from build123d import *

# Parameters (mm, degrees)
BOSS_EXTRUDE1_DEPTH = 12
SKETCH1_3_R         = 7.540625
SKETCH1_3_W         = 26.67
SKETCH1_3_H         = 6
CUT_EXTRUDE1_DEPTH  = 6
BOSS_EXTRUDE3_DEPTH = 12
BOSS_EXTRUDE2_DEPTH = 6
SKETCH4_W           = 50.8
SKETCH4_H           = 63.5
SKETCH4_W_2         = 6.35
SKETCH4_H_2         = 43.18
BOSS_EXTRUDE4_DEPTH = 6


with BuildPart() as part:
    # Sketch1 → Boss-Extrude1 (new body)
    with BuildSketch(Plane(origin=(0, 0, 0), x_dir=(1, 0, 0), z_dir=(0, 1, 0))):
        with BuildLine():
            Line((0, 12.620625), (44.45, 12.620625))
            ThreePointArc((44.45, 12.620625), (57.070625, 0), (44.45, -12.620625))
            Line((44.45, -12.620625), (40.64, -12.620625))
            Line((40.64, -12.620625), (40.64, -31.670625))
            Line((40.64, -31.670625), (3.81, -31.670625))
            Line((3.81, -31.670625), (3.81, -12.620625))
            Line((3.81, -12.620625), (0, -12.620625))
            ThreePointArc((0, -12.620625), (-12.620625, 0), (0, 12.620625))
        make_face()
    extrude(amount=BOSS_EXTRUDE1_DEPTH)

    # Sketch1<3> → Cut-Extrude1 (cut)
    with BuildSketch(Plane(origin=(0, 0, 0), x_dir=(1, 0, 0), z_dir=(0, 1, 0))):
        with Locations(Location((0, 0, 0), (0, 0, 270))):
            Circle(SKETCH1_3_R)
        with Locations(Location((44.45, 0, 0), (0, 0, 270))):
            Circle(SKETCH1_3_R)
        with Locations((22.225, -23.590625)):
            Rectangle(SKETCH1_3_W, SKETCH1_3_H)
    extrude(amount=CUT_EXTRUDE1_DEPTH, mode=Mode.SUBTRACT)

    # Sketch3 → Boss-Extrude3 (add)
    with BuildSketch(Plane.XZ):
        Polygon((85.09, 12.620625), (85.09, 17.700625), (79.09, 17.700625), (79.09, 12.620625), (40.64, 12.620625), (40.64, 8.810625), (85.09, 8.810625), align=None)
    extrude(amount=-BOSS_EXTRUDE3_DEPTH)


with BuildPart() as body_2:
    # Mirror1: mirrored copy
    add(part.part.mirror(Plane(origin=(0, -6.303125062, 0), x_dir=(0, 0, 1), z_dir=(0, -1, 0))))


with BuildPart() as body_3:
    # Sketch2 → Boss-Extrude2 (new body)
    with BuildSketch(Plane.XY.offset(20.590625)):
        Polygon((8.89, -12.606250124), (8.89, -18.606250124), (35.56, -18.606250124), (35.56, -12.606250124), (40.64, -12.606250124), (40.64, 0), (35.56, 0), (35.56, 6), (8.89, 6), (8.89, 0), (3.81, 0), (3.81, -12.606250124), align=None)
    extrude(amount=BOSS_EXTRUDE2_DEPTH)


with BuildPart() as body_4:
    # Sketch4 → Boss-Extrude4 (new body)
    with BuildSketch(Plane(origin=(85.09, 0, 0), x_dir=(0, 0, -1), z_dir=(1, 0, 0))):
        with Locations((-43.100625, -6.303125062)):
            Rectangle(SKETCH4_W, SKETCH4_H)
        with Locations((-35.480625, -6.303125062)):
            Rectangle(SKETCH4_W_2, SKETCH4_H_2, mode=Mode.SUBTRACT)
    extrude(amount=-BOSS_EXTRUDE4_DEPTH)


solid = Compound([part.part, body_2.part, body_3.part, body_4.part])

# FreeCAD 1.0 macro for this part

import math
import FreeCAD as App
import Part
import Sketcher

V = App.Vector
Q = App.Units.Quantity

doc = App.newDocument("Part")
body = doc.addObject("PartDesign::Body", "Body")

sketch1 = body.newObject("Sketcher::SketchObject", "Sketch")
sketch1.AttachmentSupport = (doc.getObject("XZ_Plane"), [""])
sketch1.MapMode = "FlatFace"
sketch1.addGeometry(Part.LineSegment(V(44.5, -12.6, 0), V(0, -12.6, 0)), False)
sketch1.addGeometry(Part.ArcOfCircle(Part.Circle(V(0, 0, 0), V(0, 0, 1), 12.6), math.radians(90), math.radians(270)), False)
sketch1.addGeometry(Part.LineSegment(V(0, 12.6, 0), V(3.8, 12.6, 0)), False)
sketch1.addGeometry(Part.LineSegment(V(3.8, 12.6, 0), V(3.8, 31.7, 0)), False)
sketch1.addGeometry(Part.LineSegment(V(3.8, 31.7, 0), V(40.6, 31.7, 0)), False)
sketch1.addGeometry(Part.LineSegment(V(40.6, 31.7, 0), V(40.6, 12.6, 0)), False)
sketch1.addGeometry(Part.LineSegment(V(40.6, 12.6, 0), V(44.5, 12.6, 0)), False)
sketch1.addGeometry(Part.ArcOfCircle(Part.Circle(V(44.5, 0, 0), V(0, 0, 1), 12.6), math.radians(-90), math.radians(90)), False)
sketch1.addConstraint(Sketcher.Constraint("Tangent", 0, 2, 1, 2))
sketch1.addConstraint(Sketcher.Constraint("Tangent", 1, 1, 2, 1))
sketch1.addConstraint(Sketcher.Constraint("Coincident", 2, 2, 3, 1))
sketch1.addConstraint(Sketcher.Constraint("Coincident", 3, 2, 4, 1))
sketch1.addConstraint(Sketcher.Constraint("Coincident", 4, 2, 5, 1))
sketch1.addConstraint(Sketcher.Constraint("Coincident", 5, 2, 6, 1))
sketch1.addConstraint(Sketcher.Constraint("Tangent", 6, 2, 7, 2))
sketch1.addConstraint(Sketcher.Constraint("Tangent", 7, 1, 0, 1))
sketch1.addConstraint(Sketcher.Constraint("Horizontal", 0))
sketch1.addConstraint(Sketcher.Constraint("Horizontal", 2))
sketch1.addConstraint(Sketcher.Constraint("Vertical", 3))
sketch1.addConstraint(Sketcher.Constraint("Horizontal", 4))
sketch1.addConstraint(Sketcher.Constraint("Vertical", 5))
sketch1.addConstraint(Sketcher.Constraint("Horizontal", 6))
sketch1.addConstraint(Sketcher.Constraint("Coincident", 1, 3, -1, 1))
sketch1.addConstraint(Sketcher.Constraint("Equal", 1, 7))
sketch1.addConstraint(Sketcher.Constraint("Equal", 2, 6))
sketch1.addConstraint(Sketcher.Constraint("DistanceX", 0, 2, 0, 1, Q("1.75 in")))
sketch1.addConstraint(Sketcher.Constraint("DistanceX", 2, 1, 2, 2, Q("0.15 in")))
sketch1.addConstraint(Sketcher.Constraint("DistanceY", 3, 1, 3, 2, Q("0.75 in")))
sketch1.addConstraint(Sketcher.Constraint("Radius", 1, 12.620625))
pad1 = body.newObject("PartDesign::Pad", "Pad")
pad1.Profile = sketch1
pad1.Length = 12
pad1.Reversed = True

sketch2 = body.newObject("Sketcher::SketchObject", "Sketch001")
sketch2.AttachmentSupport = (doc.getObject("XZ_Plane"), [""])
sketch2.MapMode = "FlatFace"
sketch2.addGeometry(Part.Circle(V(0, 0, 0), V(0, 0, 1), 8), False)
sketch2.addGeometry(Part.Circle(V(44, 0, 0), V(0, 0, 1), 8), False)
sketch2.addGeometry(Part.LineSegment(V(9, 21, 0), V(9, 27, 0)), False)
sketch2.addGeometry(Part.LineSegment(V(9, 27, 0), V(36, 27, 0)), False)
sketch2.addGeometry(Part.LineSegment(V(36, 27, 0), V(36, 21, 0)), False)
sketch2.addGeometry(Part.LineSegment(V(36, 21, 0), V(9, 21, 0)), False)
sketch2.addConstraint(Sketcher.Constraint("Coincident", 2, 2, 3, 1))
sketch2.addConstraint(Sketcher.Constraint("Coincident", 3, 2, 4, 1))
sketch2.addConstraint(Sketcher.Constraint("Coincident", 4, 2, 5, 1))
sketch2.addConstraint(Sketcher.Constraint("Coincident", 5, 2, 2, 1))
sketch2.addConstraint(Sketcher.Constraint("Vertical", 2))
sketch2.addConstraint(Sketcher.Constraint("Horizontal", 3))
sketch2.addConstraint(Sketcher.Constraint("Vertical", 4))
sketch2.addConstraint(Sketcher.Constraint("Horizontal", 5))
sketch2.addConstraint(Sketcher.Constraint("Coincident", 0, 3, -1, 1))
sketch2.addConstraint(Sketcher.Constraint("Equal", 0, 1))
sketch2.addConstraint(Sketcher.Constraint("PointOnObject", 1, 3, -1))
sketch2.addConstraint(Sketcher.Constraint("Diameter", 0, Q("0.59375 in")))
sketch2.addConstraint(Sketcher.Constraint("DistanceX", 3, 1, 3, 2, Q("1.05 in")))
sketch2.addConstraint(Sketcher.Constraint("DistanceX", -1, 1, 3, 2, Q("1.4 in")))
sketch2.addConstraint(Sketcher.Constraint("DistanceX", 2, 2, 1, 3, Q("1.4 in")))
sketch2.addConstraint(Sketcher.Constraint("DistanceY", -1, 1, 2, 2, Q("1.046875 in")))
sketch2.addConstraint(Sketcher.Constraint("DistanceY", 2, 1, 2, 2, 6.0))
pocket1 = body.newObject("PartDesign::Pocket", "Pocket")
pocket1.Profile = sketch2
pocket1.Length = 6

sketch3 = body.newObject("Sketcher::SketchObject", "Sketch002")
sketch3.AttachmentSupport = (doc.getObject("XZ_Plane"), [""])
sketch3.MapMode = "FlatFace"
sketch3.addGeometry(Part.LineSegment(V(85.1, 17.7, 0), V(79.1, 17.7, 0)), False)
sketch3.addGeometry(Part.LineSegment(V(79.1, 17.7, 0), V(79.1, 12.6, 0)), False)
sketch3.addGeometry(Part.LineSegment(V(79.1, 12.6, 0), V(40.6, 12.6, 0)), False)
sketch3.addGeometry(Part.LineSegment(V(40.6, 12.6, 0), V(40.6, 8.8, 0)), False)
sketch3.addGeometry(Part.LineSegment(V(40.6, 8.8, 0), V(85.1, 8.8, 0)), False)
sketch3.addGeometry(Part.LineSegment(V(85.1, 8.8, 0), V(85.1, 17.7, 0)), False)
sketch3.addConstraint(Sketcher.Constraint("Coincident", 0, 2, 1, 1))
sketch3.addConstraint(Sketcher.Constraint("Coincident", 1, 2, 2, 1))
sketch3.addConstraint(Sketcher.Constraint("Coincident", 2, 2, 3, 1))
sketch3.addConstraint(Sketcher.Constraint("Coincident", 3, 2, 4, 1))
sketch3.addConstraint(Sketcher.Constraint("Coincident", 4, 2, 5, 1))
sketch3.addConstraint(Sketcher.Constraint("Coincident", 5, 2, 0, 1))
sketch3.addConstraint(Sketcher.Constraint("Horizontal", 0))
sketch3.addConstraint(Sketcher.Constraint("Vertical", 1))
sketch3.addConstraint(Sketcher.Constraint("Horizontal", 2))
sketch3.addConstraint(Sketcher.Constraint("Vertical", 3))
sketch3.addConstraint(Sketcher.Constraint("Horizontal", 4))
sketch3.addConstraint(Sketcher.Constraint("Vertical", 5))
sketch3.addConstraint(Sketcher.Constraint("DistanceY", 1, 2, 1, 1, Q("0.2 in")))
sketch3.addConstraint(Sketcher.Constraint("DistanceX", 4, 1, 4, 2, Q("1.75 in")))
sketch3.addConstraint(Sketcher.Constraint("DistanceY", 3, 2, 3, 1, Q("0.15 in")))
sketch3.addConstraint(Sketcher.Constraint("DistanceX", -1, 1, 2, 2, Q("1.6 in")))
sketch3.addConstraint(Sketcher.Constraint("DistanceX", 0, 2, 0, 1, 6.0))
sketch3.addConstraint(Sketcher.Constraint("DistanceY", -1, 1, 0, 2, 17.700625))
pad2 = body.newObject("PartDesign::Pad", "Pad001")
pad2.Profile = sketch3
pad2.Length = 12
pad2.Reversed = True
body2 = doc.addObject("PartDesign::Body", "Body001")
doc.recompute()

mirroring = doc.addObject("Part::Mirroring", "Mirroring")
mirroring.Source = body
mirroring.Base = V(0, -6.303125, 0)
mirroring.Normal = V(0, -1, 0)
body2.BaseFeature = mirroring
doc.recompute()
body3 = doc.addObject("PartDesign::Body", "Body002")

sketch4 = body3.newObject("Sketcher::SketchObject", "Sketch003")
sketch4.AttachmentSupport = (doc.getObject("XY_Plane002"), [""])
sketch4.MapMode = "FlatFace"
sketch4.AttachmentOffset = App.Placement(V(0, 0, 20.590625), App.Rotation())
sketch4.addGeometry(Part.LineSegment(V(9, -13, 0), V(9, -19, 0)), False)
sketch4.addGeometry(Part.LineSegment(V(9, -19, 0), V(36, -19, 0)), False)
sketch4.addGeometry(Part.LineSegment(V(36, -19, 0), V(36, -13, 0)), False)
sketch4.addGeometry(Part.LineSegment(V(36, -13, 0), V(41, -13, 0)), False)
sketch4.addGeometry(Part.LineSegment(V(41, -13, 0), V(41, 0, 0)), False)
sketch4.addGeometry(Part.LineSegment(V(41, 0, 0), V(36, 0, 0)), False)
sketch4.addGeometry(Part.LineSegment(V(36, 0, 0), V(36, 6, 0)), False)
sketch4.addGeometry(Part.LineSegment(V(36, 6, 0), V(9, 6, 0)), False)
sketch4.addGeometry(Part.LineSegment(V(9, 6, 0), V(9, 0, 0)), False)
sketch4.addGeometry(Part.LineSegment(V(9, 0, 0), V(4, 0, 0)), False)
sketch4.addGeometry(Part.LineSegment(V(4, 0, 0), V(4, -13, 0)), False)
sketch4.addGeometry(Part.LineSegment(V(4, -13, 0), V(9, -13, 0)), False)
sketch4.addConstraint(Sketcher.Constraint("Coincident", 0, 2, 1, 1))
sketch4.addConstraint(Sketcher.Constraint("Coincident", 1, 2, 2, 1))
sketch4.addConstraint(Sketcher.Constraint("Coincident", 2, 2, 3, 1))
sketch4.addConstraint(Sketcher.Constraint("Coincident", 3, 2, 4, 1))
sketch4.addConstraint(Sketcher.Constraint("Coincident", 4, 2, 5, 1))
sketch4.addConstraint(Sketcher.Constraint("Coincident", 5, 2, 6, 1))
sketch4.addConstraint(Sketcher.Constraint("Coincident", 6, 2, 7, 1))
sketch4.addConstraint(Sketcher.Constraint("Coincident", 7, 2, 8, 1))
sketch4.addConstraint(Sketcher.Constraint("Coincident", 8, 2, 9, 1))
sketch4.addConstraint(Sketcher.Constraint("Coincident", 9, 2, 10, 1))
sketch4.addConstraint(Sketcher.Constraint("Coincident", 10, 2, 11, 1))
sketch4.addConstraint(Sketcher.Constraint("Coincident", 11, 2, 0, 1))
sketch4.addConstraint(Sketcher.Constraint("Vertical", 0))
sketch4.addConstraint(Sketcher.Constraint("Horizontal", 1))
sketch4.addConstraint(Sketcher.Constraint("Vertical", 2))
sketch4.addConstraint(Sketcher.Constraint("Horizontal", 3))
sketch4.addConstraint(Sketcher.Constraint("Vertical", 4))
sketch4.addConstraint(Sketcher.Constraint("Horizontal", 5))
sketch4.addConstraint(Sketcher.Constraint("Vertical", 6))
sketch4.addConstraint(Sketcher.Constraint("Horizontal", 7))
sketch4.addConstraint(Sketcher.Constraint("Vertical", 8))
sketch4.addConstraint(Sketcher.Constraint("Horizontal", 9))
sketch4.addConstraint(Sketcher.Constraint("Vertical", 10))
sketch4.addConstraint(Sketcher.Constraint("Horizontal", 11))
sketch4.addConstraint(Sketcher.Constraint("PointOnObject", 4, 2, -1))
sketch4.addConstraint(Sketcher.Constraint("PointOnObject", 8, 2, -1))
sketch4.addConstraint(Sketcher.Constraint("Horizontal", 3, 2, 10, 2))
sketch4.addConstraint(Sketcher.Constraint("Vertical", 2, 2, 5, 2))
sketch4.addConstraint(Sketcher.Constraint("Vertical", 0, 2, 7, 2))
sketch4.addConstraint(Sketcher.Constraint("Equal", 5, 9))
sketch4.addConstraint(Sketcher.Constraint("Equal", 2, 6))
sketch4.addConstraint(Sketcher.Constraint("DistanceX", 3, 1, 3, 2, Q("0.2 in")))
sketch4.addConstraint(Sketcher.Constraint("DistanceX", 1, 1, 1, 2, Q("1.05 in")))
sketch4.addConstraint(Sketcher.Constraint("DistanceX", -1, 1, 1, 2, Q("1.4 in")))
sketch4.addConstraint(Sketcher.Constraint("DistanceY", 1, 2, 6, 2, Q("0.96875 in")))
sketch4.addConstraint(Sketcher.Constraint("DistanceY", 0, 2, 0, 1, 6.0))
pad3 = body3.newObject("PartDesign::Pad", "Pad002")
pad3.Profile = sketch4
pad3.Length = 6
body4 = doc.addObject("PartDesign::Body", "Body003")

sketch5 = body4.newObject("Sketcher::SketchObject", "Sketch004")
sketch5.AttachmentSupport = (doc.getObject("YZ_Plane003"), [""])
sketch5.MapMode = "FlatFace"
sketch5.AttachmentOffset = App.Placement(V(0, 0, 3.35 * 25.4), App.Rotation())
sketch5.addGeometry(Part.LineSegment(V(25, 69, 0), V(-38, 69, 0)), False)
sketch5.addGeometry(Part.LineSegment(V(-38, 69, 0), V(-38, 18, 0)), False)
sketch5.addGeometry(Part.LineSegment(V(-38, 18, 0), V(25, 18, 0)), False)
sketch5.addGeometry(Part.LineSegment(V(25, 18, 0), V(25, 69, 0)), False)
sketch5.addGeometry(Part.LineSegment(V(-28, 32, 0), V(-28, 39, 0)), False)
sketch5.addGeometry(Part.LineSegment(V(-28, 39, 0), V(15, 39, 0)), False)
sketch5.addGeometry(Part.LineSegment(V(15, 39, 0), V(15, 32, 0)), False)
sketch5.addGeometry(Part.LineSegment(V(15, 32, 0), V(-28, 32, 0)), False)
sketch5.addConstraint(Sketcher.Constraint("Coincident", 0, 2, 1, 1))
sketch5.addConstraint(Sketcher.Constraint("Coincident", 1, 2, 2, 1))
sketch5.addConstraint(Sketcher.Constraint("Coincident", 2, 2, 3, 1))
sketch5.addConstraint(Sketcher.Constraint("Coincident", 3, 2, 0, 1))
sketch5.addConstraint(Sketcher.Constraint("Coincident", 4, 2, 5, 1))
sketch5.addConstraint(Sketcher.Constraint("Coincident", 5, 2, 6, 1))
sketch5.addConstraint(Sketcher.Constraint("Coincident", 6, 2, 7, 1))
sketch5.addConstraint(Sketcher.Constraint("Coincident", 7, 2, 4, 1))
sketch5.addConstraint(Sketcher.Constraint("Horizontal", 0))
sketch5.addConstraint(Sketcher.Constraint("Vertical", 1))
sketch5.addConstraint(Sketcher.Constraint("Horizontal", 2))
sketch5.addConstraint(Sketcher.Constraint("Vertical", 3))
sketch5.addConstraint(Sketcher.Constraint("Vertical", 4))
sketch5.addConstraint(Sketcher.Constraint("Horizontal", 5))
sketch5.addConstraint(Sketcher.Constraint("Vertical", 6))
sketch5.addConstraint(Sketcher.Constraint("Horizontal", 7))
sketch5.addConstraint(Sketcher.Constraint("DistanceY", 1, 2, 1, 1, Q("2 in")))
sketch5.addConstraint(Sketcher.Constraint("DistanceX", 0, 2, 0, 1, Q("2.5 in")))
sketch5.addConstraint(Sketcher.Constraint("DistanceX", 5, 1, 5, 2, Q("1.7 in")))
sketch5.addConstraint(Sketcher.Constraint("DistanceY", 4, 1, 4, 2, Q("0.25 in")))
sketch5.addConstraint(Sketcher.Constraint("DistanceX", 1, 2, 4, 2, Q("0.4 in")))
sketch5.addConstraint(Sketcher.Constraint("DistanceY", 1, 2, 4, 2, Q("0.825 in")))
sketch5.addConstraint(Sketcher.Constraint("DistanceX", 0, 2, -1, 1, 38.053125))
sketch5.addConstraint(Sketcher.Constraint("DistanceY", -1, 1, 0, 2, 68.500625))
pad4 = body4.newObject("PartDesign::Pad", "Pad003")
pad4.Profile = sketch5
pad4.Length = 6
pad4.Reversed = True
mirroring.Visibility = False

doc.recompute()
